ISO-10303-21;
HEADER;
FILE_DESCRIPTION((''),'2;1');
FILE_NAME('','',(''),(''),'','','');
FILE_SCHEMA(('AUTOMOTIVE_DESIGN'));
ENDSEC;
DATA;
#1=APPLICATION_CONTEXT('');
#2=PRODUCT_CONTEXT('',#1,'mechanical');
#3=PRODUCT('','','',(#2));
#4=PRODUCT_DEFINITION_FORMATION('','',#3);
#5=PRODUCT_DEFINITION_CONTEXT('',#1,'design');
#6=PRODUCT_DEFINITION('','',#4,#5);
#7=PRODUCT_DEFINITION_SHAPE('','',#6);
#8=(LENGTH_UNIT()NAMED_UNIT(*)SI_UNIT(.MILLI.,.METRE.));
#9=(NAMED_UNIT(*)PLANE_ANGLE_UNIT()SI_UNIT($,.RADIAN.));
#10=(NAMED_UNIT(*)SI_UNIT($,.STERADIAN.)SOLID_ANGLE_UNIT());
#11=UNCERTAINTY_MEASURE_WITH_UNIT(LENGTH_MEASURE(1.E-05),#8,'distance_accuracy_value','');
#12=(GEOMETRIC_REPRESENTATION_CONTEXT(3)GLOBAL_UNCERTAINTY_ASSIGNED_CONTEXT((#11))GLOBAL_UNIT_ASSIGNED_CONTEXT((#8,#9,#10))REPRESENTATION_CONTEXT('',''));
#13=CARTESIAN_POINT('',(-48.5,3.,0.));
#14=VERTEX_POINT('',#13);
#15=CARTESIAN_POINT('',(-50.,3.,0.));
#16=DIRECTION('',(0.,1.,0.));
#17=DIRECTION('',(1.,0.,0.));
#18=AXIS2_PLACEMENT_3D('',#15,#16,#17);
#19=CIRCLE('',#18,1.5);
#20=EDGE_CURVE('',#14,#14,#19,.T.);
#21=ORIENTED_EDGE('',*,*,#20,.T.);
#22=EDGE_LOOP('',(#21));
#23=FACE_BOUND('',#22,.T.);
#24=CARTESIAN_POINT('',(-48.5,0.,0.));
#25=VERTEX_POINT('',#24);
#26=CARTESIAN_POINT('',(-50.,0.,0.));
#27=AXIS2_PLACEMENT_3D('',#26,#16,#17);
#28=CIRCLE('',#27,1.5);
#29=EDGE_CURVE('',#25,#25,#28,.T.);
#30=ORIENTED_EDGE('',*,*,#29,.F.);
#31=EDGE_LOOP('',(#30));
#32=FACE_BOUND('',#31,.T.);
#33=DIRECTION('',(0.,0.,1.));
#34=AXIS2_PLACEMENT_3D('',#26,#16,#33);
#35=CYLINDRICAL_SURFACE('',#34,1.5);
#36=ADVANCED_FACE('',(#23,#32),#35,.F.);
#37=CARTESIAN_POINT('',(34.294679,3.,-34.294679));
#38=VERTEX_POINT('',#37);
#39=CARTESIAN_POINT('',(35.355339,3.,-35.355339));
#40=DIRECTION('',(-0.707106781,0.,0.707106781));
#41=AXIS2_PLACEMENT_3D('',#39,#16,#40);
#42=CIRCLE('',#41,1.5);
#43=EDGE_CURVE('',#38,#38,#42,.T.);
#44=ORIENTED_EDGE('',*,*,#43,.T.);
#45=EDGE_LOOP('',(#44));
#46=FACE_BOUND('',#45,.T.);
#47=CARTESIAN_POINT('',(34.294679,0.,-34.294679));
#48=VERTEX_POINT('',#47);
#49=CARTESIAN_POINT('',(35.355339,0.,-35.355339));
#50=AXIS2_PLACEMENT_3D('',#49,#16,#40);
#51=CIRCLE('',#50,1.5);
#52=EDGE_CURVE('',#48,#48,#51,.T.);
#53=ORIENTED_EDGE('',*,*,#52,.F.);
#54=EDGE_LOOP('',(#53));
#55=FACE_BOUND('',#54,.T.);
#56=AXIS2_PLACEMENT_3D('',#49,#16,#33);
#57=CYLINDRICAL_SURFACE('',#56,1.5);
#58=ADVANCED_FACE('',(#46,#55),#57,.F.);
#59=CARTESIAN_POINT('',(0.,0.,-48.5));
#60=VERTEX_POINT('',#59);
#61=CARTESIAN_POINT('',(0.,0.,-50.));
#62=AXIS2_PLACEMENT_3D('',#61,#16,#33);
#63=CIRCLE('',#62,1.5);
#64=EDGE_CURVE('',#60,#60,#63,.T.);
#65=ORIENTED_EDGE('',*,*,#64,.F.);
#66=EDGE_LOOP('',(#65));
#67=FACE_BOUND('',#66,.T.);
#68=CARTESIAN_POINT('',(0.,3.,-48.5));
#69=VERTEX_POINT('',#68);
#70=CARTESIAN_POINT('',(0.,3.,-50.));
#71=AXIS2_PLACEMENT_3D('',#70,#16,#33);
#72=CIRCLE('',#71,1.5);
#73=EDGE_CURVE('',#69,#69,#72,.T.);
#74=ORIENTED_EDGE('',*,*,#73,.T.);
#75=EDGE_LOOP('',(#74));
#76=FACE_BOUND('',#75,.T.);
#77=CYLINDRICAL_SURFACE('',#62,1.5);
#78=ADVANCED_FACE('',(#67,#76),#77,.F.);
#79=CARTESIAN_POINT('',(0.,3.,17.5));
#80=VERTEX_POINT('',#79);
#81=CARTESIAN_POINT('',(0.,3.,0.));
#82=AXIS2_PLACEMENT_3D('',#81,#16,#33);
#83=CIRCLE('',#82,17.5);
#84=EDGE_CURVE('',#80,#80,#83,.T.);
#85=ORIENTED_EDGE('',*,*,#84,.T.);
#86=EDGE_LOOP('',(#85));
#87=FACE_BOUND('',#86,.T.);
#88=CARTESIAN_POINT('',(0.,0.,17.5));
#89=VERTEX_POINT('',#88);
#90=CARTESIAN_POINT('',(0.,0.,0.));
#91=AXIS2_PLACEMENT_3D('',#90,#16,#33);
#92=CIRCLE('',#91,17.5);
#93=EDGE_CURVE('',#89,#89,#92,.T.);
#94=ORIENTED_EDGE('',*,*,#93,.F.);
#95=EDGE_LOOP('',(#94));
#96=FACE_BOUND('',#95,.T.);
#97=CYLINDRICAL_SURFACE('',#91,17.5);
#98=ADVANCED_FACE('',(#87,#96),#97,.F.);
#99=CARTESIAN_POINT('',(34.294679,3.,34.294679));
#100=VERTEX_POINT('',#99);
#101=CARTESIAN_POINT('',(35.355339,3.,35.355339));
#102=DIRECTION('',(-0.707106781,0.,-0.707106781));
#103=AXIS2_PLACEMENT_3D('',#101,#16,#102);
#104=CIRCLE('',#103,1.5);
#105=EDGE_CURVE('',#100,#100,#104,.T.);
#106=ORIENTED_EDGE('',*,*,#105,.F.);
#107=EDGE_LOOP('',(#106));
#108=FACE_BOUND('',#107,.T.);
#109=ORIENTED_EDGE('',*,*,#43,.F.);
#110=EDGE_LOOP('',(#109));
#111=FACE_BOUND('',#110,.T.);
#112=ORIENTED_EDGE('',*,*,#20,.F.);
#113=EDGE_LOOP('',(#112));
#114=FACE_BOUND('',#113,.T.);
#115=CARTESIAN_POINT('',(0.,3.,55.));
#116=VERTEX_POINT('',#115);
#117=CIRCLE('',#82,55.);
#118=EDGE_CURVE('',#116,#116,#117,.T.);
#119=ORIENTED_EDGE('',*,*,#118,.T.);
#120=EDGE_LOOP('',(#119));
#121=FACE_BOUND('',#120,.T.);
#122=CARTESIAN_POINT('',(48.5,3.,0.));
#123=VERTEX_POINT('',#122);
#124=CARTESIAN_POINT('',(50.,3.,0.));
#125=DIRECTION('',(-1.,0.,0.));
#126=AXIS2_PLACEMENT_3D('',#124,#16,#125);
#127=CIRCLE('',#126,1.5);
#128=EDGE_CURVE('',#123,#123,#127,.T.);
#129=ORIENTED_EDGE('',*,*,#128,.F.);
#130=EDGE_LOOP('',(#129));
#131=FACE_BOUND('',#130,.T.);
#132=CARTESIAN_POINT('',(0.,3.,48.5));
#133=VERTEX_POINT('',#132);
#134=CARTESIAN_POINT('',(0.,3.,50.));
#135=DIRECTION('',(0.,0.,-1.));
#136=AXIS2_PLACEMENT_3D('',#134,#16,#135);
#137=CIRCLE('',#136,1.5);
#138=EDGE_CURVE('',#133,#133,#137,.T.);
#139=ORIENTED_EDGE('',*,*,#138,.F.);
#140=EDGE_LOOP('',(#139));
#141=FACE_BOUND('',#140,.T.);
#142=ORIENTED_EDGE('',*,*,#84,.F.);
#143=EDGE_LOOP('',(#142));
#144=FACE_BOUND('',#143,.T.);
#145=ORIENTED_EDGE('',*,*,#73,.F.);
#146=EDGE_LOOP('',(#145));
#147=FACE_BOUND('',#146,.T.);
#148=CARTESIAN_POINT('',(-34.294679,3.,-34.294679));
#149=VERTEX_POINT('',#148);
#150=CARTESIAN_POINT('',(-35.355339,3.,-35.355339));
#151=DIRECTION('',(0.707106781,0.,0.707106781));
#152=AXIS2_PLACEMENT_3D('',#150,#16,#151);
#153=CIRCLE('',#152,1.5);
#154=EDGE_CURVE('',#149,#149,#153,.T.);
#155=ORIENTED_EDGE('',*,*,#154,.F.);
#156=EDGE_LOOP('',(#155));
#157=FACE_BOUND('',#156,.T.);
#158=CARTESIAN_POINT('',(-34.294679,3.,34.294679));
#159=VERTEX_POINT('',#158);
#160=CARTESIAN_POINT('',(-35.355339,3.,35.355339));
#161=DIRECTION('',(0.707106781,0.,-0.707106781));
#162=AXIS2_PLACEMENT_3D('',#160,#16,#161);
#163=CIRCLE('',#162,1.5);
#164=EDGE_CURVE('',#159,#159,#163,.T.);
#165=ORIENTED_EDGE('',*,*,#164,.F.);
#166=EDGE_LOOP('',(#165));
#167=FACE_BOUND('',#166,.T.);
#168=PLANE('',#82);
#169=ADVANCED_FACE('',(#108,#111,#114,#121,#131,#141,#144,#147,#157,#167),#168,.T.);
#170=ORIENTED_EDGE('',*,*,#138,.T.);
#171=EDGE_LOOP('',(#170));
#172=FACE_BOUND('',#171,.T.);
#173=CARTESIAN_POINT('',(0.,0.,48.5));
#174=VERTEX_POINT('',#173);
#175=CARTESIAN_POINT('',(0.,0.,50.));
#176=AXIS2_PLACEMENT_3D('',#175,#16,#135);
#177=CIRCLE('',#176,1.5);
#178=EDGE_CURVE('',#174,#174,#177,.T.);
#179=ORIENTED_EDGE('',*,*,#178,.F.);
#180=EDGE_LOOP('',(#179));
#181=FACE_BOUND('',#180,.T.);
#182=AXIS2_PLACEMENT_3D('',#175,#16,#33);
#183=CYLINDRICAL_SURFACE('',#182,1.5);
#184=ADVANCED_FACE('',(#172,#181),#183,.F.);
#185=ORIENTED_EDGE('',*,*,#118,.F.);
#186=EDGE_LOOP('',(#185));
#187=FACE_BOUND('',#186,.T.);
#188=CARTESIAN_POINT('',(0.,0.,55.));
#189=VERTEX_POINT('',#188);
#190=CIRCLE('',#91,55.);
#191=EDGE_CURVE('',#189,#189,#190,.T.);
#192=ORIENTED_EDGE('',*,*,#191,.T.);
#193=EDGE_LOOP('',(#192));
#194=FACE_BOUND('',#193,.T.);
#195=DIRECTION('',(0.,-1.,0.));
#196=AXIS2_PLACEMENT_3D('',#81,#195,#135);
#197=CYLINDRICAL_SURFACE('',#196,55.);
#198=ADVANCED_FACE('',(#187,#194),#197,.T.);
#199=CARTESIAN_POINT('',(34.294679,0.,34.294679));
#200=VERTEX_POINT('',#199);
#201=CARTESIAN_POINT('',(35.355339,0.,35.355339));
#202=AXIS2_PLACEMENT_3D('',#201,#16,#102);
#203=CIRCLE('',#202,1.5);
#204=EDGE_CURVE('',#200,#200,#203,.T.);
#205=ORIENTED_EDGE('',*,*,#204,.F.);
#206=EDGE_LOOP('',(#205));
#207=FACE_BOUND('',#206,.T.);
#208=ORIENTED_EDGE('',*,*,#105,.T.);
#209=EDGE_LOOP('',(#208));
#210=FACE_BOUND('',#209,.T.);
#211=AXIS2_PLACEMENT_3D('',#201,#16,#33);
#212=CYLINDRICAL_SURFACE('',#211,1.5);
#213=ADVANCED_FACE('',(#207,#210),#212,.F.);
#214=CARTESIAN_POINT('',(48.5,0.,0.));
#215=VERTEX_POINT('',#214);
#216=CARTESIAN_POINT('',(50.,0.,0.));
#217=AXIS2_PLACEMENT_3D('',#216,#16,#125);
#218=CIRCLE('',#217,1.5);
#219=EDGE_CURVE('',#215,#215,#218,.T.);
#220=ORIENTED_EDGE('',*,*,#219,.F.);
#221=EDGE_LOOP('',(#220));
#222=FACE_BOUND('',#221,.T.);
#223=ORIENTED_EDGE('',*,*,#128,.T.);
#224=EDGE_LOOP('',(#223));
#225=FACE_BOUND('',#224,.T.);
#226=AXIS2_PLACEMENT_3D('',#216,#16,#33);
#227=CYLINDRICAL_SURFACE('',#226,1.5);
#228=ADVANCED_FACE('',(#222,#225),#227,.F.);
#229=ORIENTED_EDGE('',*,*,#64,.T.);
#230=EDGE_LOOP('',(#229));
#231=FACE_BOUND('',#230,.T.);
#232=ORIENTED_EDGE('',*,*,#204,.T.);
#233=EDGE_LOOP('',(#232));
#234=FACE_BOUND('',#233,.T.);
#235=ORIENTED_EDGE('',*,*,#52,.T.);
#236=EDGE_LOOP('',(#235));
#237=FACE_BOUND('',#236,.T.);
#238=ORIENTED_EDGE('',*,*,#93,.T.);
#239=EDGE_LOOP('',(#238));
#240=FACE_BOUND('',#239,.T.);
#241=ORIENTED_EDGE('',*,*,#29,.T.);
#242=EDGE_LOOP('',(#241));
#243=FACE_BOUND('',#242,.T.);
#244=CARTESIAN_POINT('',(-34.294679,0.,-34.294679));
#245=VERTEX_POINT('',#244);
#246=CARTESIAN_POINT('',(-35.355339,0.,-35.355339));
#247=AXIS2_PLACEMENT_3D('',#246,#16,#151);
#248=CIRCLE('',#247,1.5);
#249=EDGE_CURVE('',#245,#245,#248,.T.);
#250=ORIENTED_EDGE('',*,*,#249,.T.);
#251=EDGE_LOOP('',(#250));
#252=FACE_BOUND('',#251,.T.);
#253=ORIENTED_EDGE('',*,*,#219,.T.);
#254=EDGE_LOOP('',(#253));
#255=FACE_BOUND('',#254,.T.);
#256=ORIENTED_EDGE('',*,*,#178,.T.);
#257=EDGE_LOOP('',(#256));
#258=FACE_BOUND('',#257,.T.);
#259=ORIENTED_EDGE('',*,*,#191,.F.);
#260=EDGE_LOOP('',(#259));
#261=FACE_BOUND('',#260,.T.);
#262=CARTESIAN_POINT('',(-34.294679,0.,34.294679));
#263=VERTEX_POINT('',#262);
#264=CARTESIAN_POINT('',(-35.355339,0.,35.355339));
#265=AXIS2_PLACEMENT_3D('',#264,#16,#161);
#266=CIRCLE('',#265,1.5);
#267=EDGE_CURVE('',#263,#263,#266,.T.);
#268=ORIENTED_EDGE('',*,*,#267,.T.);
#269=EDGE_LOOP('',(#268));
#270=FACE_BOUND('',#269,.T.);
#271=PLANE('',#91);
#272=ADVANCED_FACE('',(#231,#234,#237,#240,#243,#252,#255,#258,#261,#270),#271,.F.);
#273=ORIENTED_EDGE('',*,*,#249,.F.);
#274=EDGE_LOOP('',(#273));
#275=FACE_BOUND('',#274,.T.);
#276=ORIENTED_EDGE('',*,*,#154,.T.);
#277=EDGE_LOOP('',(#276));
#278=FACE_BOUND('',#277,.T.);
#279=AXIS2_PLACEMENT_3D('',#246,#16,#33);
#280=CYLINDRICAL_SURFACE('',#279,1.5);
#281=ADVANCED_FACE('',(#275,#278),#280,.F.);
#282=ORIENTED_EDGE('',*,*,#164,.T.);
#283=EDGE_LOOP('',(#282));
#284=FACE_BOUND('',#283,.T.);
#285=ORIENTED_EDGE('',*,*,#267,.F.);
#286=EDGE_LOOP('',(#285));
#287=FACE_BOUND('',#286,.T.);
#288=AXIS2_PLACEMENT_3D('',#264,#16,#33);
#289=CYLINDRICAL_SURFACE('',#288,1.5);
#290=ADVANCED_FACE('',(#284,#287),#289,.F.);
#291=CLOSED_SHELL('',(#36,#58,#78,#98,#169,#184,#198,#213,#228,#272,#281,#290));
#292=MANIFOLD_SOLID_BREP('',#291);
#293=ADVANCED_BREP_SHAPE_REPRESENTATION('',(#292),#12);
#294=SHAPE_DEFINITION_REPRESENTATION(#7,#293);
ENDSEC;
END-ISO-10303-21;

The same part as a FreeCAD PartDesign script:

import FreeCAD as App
import Part
import Sketcher
from FreeCAD import Vector

doc = App.newDocument("Part")
params = doc.addObject("Spreadsheet::Sheet", "Params")
for row, (alias, value) in enumerate([
    ("sketch1_diameter", "110 mm"),
    ("pad1_length", "3 mm"),
    ("sketch2_diameter", "35 mm"),
    ("pocket1_length", "3 mm"),
    ("sketch3_diameter", "3 mm"),
    ("pocket2_length", "3 mm"),
], start=1):
    params.set(f"A{row}", alias)
    params.set(f"B{row}", "=" + value)
    params.setAlias(f"B{row}", alias)

body = doc.addObject("PartDesign::Body", "Body")

# Sketch on XZ plane
sketch1 = body.newObject("Sketcher::SketchObject", "Sketch")
sketch1.AttachmentSupport = (doc.getObject("XZ_Plane"), [""])
sketch1.MapMode = "FlatFace"
sketch1.addGeometry(Part.Circle(Vector(0, 0, 0), Vector(0, 0, 1), 55), False)
sketch1.addConstraint([
    Sketcher.Constraint("Coincident", 0, 3, -1, 1),
    Sketcher.Constraint("Diameter", 0, 110.0),
])
sketch1.setExpression("Constraints[1]", "Params.sketch1_diameter")
pad1 = body.newObject("PartDesign::Pad", "Pad")
pad1.Profile = sketch1
pad1.setExpression("Length", "Params.pad1_length")
pad1.Reversed = True

# Sketch on XZ plane
sketch2 = body.newObject("Sketcher::SketchObject", "Sketch001")
sketch2.AttachmentSupport = (doc.getObject("XZ_Plane"), [""])
sketch2.MapMode = "FlatFace"
sketch2.AttachmentOffset = App.Placement(Vector(0, 0, -3), App.Rotation())
sketch2.addGeometry(Part.Circle(Vector(0, 0, 0), Vector(0, 0, 1), 17.5), False)
sketch2.addConstraint([
    Sketcher.Constraint("Coincident", 0, 3, -1, 1),
    Sketcher.Constraint("Diameter", 0, 35.0),
])
sketch2.setExpression("Constraints[1]", "Params.sketch2_diameter")
pocket1 = body.newObject("PartDesign::Pocket", "Pocket")
pocket1.Profile = sketch2
pocket1.setExpression("Length", "Params.pocket1_length")
pocket1.Reversed = True

# Sketch on XZ plane
sketch3 = body.newObject("Sketcher::SketchObject", "Sketch002")
sketch3.AttachmentSupport = (doc.getObject("XZ_Plane"), [""])
sketch3.MapMode = "FlatFace"
sketch3.AttachmentOffset = App.Placement(Vector(0, 0, -3), App.Rotation())
sketch3.addGeometry(Part.Circle(Vector(0, -50, 0), Vector(0, 0, 1), 1.5), False)
sketch3.addConstraint([
    Sketcher.Constraint("PointOnObject", 0, 3, -2),
    Sketcher.Constraint("Diameter", 0, 3.0),
    Sketcher.Constraint("DistanceY", 0, 3, -1, 1, 50.0),
])
sketch3.setExpression("Constraints[1]", "Params.sketch3_diameter")
pocket2 = body.newObject("PartDesign::Pocket", "Pocket001")
pocket2.Profile = sketch3
pocket2.setExpression("Length", "Params.pocket2_length")
pocket2.Reversed = True
doc.recompute()

polarpattern = body.newObject("PartDesign::PolarPattern", "PolarPattern")
polarpattern.Originals = [pocket2]
polarpattern.Axis = (doc.getObject("Y_Axis"), [""])
polarpattern.Angle = 360
polarpattern.Occurrences = 8
body.Tip = polarpattern

doc.recompute()
